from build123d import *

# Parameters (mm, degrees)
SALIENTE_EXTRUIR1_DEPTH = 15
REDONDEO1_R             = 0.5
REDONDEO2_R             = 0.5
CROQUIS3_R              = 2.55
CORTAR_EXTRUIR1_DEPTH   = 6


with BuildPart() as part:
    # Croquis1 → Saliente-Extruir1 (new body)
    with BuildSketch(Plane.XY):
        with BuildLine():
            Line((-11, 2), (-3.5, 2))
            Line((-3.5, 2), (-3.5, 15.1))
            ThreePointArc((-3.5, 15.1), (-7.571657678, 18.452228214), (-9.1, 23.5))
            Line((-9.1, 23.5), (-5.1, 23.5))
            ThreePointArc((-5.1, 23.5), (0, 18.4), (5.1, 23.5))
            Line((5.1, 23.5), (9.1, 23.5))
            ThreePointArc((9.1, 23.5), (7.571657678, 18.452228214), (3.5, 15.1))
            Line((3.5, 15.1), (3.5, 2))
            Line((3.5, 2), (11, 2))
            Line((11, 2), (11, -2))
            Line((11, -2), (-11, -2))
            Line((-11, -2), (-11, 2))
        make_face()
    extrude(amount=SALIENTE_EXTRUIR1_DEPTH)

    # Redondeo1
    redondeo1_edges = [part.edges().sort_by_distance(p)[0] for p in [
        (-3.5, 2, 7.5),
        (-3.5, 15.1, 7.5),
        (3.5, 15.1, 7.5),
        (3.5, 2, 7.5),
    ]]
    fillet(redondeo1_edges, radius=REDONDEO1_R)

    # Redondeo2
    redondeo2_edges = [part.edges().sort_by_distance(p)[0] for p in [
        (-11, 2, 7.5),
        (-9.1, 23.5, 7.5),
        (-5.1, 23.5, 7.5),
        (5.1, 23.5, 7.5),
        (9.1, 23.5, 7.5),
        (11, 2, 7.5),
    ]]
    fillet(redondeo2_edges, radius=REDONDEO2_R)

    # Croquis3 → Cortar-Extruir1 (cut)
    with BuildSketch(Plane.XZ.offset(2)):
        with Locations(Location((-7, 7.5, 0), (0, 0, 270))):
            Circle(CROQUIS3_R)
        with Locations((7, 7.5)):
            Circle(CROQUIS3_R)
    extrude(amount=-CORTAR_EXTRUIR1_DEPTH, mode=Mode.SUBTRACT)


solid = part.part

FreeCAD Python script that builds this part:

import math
import FreeCAD as App
import Part
import Sketcher

V = App.Vector
Q = App.Units.Quantity


def edges_at(feature, points):
    """Names of the edges that pass closest to the given points."""
    edges = feature.Shape.Edges
    near = lambda p: min(range(len(edges)), key=lambda i: edges[i].distToShape(Part.Vertex(*p))[0])
    return sorted({f"Edge{near(p) + 1}" for p in points})

doc = App.newDocument("Part")
body = doc.addObject("PartDesign::Body", "Body")

sketch1 = body.newObject("Sketcher::SketchObject", "Sketch")
sketch1.AttachmentSupport = (doc.getObject("XY_Plane"), [""])
sketch1.MapMode = "FlatFace"
sketch1.addGeometry([
    Part.LineSegment(V(-3.5, 2, 0), V(-11, 2, 0)),
    Part.LineSegment(V(-11, 2, 0), V(-11, -2, 0)),
    Part.LineSegment(V(-11, -2, 0), V(11, -2, 0)),
    Part.LineSegment(V(11, -2, 0), V(11, 2, 0)),
    Part.LineSegment(V(11, 2, 0), V(3.5, 2, 0)),
    Part.LineSegment(V(3.5, 2, 0), V(3.5, 15.1, 0)),
    Part.ArcOfCircle(Part.Circle(V(0, 23.5, 0), V(0, 0, 1), 9.1), math.radians(-67), math.radians(0)),
    Part.LineSegment(V(9.1, 23.5, 0), V(5.1, 23.5, 0)),
    Part.ArcOfCircle(Part.Circle(V(0, 23.5, 0), V(0, 0, 1), 5.1), math.radians(180), math.radians(360)),
    Part.LineSegment(V(-5.1, 23.5, 0), V(-9.1, 23.5, 0)),
    Part.ArcOfCircle(Part.Circle(V(0, 23.5, 0), V(0, 0, 1), 9.1), math.radians(-180), math.radians(-113)),
    Part.LineSegment(V(-3.5, 15.1, 0), V(-3.5, 2, 0)),
], False)
sketch1.addConstraint([
    Sketcher.Constraint("Coincident", 0, 2, 1, 1),
    Sketcher.Constraint("Coincident", 1, 2, 2, 1),
    Sketcher.Constraint("Coincident", 2, 2, 3, 1),
    Sketcher.Constraint("Coincident", 3, 2, 4, 1),
    Sketcher.Constraint("Coincident", 4, 2, 5, 1),
    Sketcher.Constraint("Coincident", 5, 2, 6, 1),
    Sketcher.Constraint("Coincident", 6, 2, 7, 1),
    Sketcher.Constraint("Coincident", 7, 2, 8, 2),
    Sketcher.Constraint("Coincident", 8, 1, 9, 1),
    Sketcher.Constraint("Coincident", 9, 2, 10, 1),
    Sketcher.Constraint("Coincident", 10, 2, 11, 1),
    Sketcher.Constraint("Coincident", 11, 2, 0, 1),
    Sketcher.Constraint("Horizontal", 0),
    Sketcher.Constraint("Vertical", 1),
    Sketcher.Constraint("Horizontal", 2),
    Sketcher.Constraint("Vertical", 3),
    Sketcher.Constraint("Horizontal", 4),
    Sketcher.Constraint("Vertical", 5),
    Sketcher.Constraint("Horizontal", 7),
    Sketcher.Constraint("Horizontal", 9),
    Sketcher.Constraint("Vertical", 11),
    Sketcher.Constraint("Coincident", 8, 3, 6, 3),
    Sketcher.Constraint("Coincident", 10, 3, 6, 3),
    Sketcher.Constraint("Equal", 6, 10),
    Sketcher.Constraint("Symmetric", 0, 2, 2, 2, -1, 1),
    Sketcher.Constraint("Symmetric", 7, 2, 8, 1, -2),
    Sketcher.Constraint("Symmetric", 4, 2, 11, 2, -2),
    Sketcher.Constraint("Horizontal", 10, 3, 6, 2),
    Sketcher.Constraint("Equal", 9, 1),
    Sketcher.Constraint("Radius", 6, Q("9.1 mm")),
    Sketcher.Constraint("Radius", 8, Q("5.1 mm")),
    Sketcher.Constraint("DistanceX", 2, 1, 2, 2, Q("22 mm")),
    Sketcher.Constraint("DistanceX", 0, 2, 0, 1, Q("7.5 mm")),
    Sketcher.Constraint("DistanceY", 5, 1, 5, 2, Q("13.1 mm")),
])
pad1 = body.newObject("PartDesign::Pad", "Pad")
pad1.Profile = sketch1
pad1.Length = 15
doc.recompute()

fillet = body.newObject("PartDesign::Fillet", "Fillet")
fillet.Base = (pad1, edges_at(pad1, [
    (-3.5, 2, 7.5),
    (-3.5, 15.1, 7.5),
    (3.5, 15.1, 7.5),
    (3.5, 2, 7.5),
]))
fillet.Radius = 0.5
doc.recompute()

fillet2 = body.newObject("PartDesign::Fillet", "Fillet001")
fillet2.Base = (fillet, edges_at(fillet, [
    (-11, 2, 7.5),
    (-9.1, 23.5, 7.5),
    (-5.1, 23.5, 7.5),
    (5.1, 23.5, 7.5),
    (9.1, 23.5, 7.5),
    (11, 2, 7.5),
]))
fillet2.Radius = 0.5

sketch2 = body.newObject("Sketcher::SketchObject", "Sketch001")
sketch2.AttachmentSupport = (doc.getObject("XZ_Plane"), [""])
sketch2.MapMode = "FlatFace"
sketch2.AttachmentOffset = App.Placement(V(0, 0, 2), App.Rotation())
sketch2.addGeometry([
    Part.Circle(V(-7, 7.5, 0), V(0, 0, 1), 2.5),
    Part.Circle(V(7, 7.5, 0), V(0, 0, 1), 2.5),
], False)
sketch2.addConstraint([
    Sketcher.Constraint("Equal", 0, 1),
    Sketcher.Constraint("Symmetric", 0, 3, 1, 3, -2),
    Sketcher.Constraint("Diameter", 0, Q("5.1 mm")),
    Sketcher.Constraint("DistanceX", 0, 3, -1, 1, Q("7 mm")),
    Sketcher.Constraint("DistanceY", -1, 1, 0, 3, Q("7.5 mm")),
])
pocket1 = body.newObject("PartDesign::Pocket", "Pocket")
pocket1.Profile = sketch2
pocket1.Length = 6

doc.recompute()
